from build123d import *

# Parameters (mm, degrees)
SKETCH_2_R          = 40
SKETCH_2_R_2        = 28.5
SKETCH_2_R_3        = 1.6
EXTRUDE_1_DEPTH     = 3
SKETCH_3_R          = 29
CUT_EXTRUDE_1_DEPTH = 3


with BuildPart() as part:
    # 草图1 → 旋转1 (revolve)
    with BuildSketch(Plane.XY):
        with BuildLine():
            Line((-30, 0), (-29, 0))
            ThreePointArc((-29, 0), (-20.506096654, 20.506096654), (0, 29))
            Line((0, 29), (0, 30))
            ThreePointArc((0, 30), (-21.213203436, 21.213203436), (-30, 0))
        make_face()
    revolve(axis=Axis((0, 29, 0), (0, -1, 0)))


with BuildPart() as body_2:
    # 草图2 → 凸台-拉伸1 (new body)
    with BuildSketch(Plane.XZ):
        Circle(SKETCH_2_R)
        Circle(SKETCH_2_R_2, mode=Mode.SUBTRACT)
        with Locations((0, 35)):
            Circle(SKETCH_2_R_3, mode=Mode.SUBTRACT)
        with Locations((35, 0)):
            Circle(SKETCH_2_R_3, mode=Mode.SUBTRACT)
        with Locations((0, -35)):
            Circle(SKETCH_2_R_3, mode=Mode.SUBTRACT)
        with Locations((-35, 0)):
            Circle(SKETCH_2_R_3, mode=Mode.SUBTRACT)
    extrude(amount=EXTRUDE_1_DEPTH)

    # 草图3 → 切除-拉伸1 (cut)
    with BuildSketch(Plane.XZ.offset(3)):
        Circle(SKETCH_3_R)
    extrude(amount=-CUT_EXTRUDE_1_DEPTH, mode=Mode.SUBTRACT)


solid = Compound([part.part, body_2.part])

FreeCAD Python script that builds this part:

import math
import FreeCAD as App
import Part
import Sketcher

doc = App.newDocument("Part")
params = doc.addObject("Spreadsheet::Sheet", "Params")
for row, (alias, value) in enumerate([
    ("sketch1_radius", "29 mm"),
    ("sketch1_radius2", "30 mm"),
    ("revolution_angle", "360 deg"),
    ("sketch2_diameter", "80 mm"),
    ("sketch2_diameter2", "57 mm"),
    ("sketch2_diameter3", "3.2 mm"),
    ("pad1_length", "3 mm"),
    ("sketch3_diameter", "58 mm"),
    ("pocket1_length", "3 mm"),
], start=1):
    params.set(f"A{row}", alias)
    params.set(f"B{row}", "=" + value)
    params.setAlias(f"B{row}", alias)

body = doc.addObject("PartDesign::Body", "Body")

# Sketch on XY plane
sketch1 = doc.addObject("Sketcher::SketchObject", "Sketch")
body.addObject(sketch1)
sketch1.AttachmentSupport = (doc.XY_Plane, [""])
sketch1.MapMode = "FlatFace"
sketch1.addGeometry(Part.LineSegment(App.Vector(-30, 0, 0), App.Vector(-29, 0, 0)), False)
sketch1.addGeometry(Part.ArcOfCircle(Part.Circle(App.Vector(0, 0, 0), App.Vector(0, 0, 1), 29), math.radians(90), math.radians(180)), False)
sketch1.addGeometry(Part.LineSegment(App.Vector(0, 29, 0), App.Vector(0, 30, 0)), False)
sketch1.addGeometry(Part.ArcOfCircle(Part.Circle(App.Vector(0, 0, 0), App.Vector(0, 0, 1), 30), math.radians(90), math.radians(180)), False)
sketch1.addConstraint(Sketcher.Constraint("Coincident", 0, 2, 1, 2))
sketch1.addConstraint(Sketcher.Constraint("Coincident", 1, 1, 2, 1))
sketch1.addConstraint(Sketcher.Constraint("Coincident", 2, 2, 3, 1))
sketch1.addConstraint(Sketcher.Constraint("Coincident", 3, 2, 0, 1))
sketch1.addConstraint(Sketcher.Constraint("Horizontal", 0))
sketch1.addConstraint(Sketcher.Constraint("Vertical", 2))
sketch1.addConstraint(Sketcher.Constraint("Coincident", 1, 3, -1, 1))
sketch1.addConstraint(Sketcher.Constraint("Coincident", 3, 3, -1, 1))
sketch1.addConstraint(Sketcher.Constraint("PointOnObject", 0, 2, -1))
sketch1.addConstraint(Sketcher.Constraint("PointOnObject", 1, 1, -2))
sketch1.addConstraint(Sketcher.Constraint("Radius", 1, 29.0))
sketch1.addConstraint(Sketcher.Constraint("Radius", 3, 30.0))
sketch1.setExpression("Constraints[10]", "Params.sketch1_radius")
sketch1.setExpression("Constraints[11]", "Params.sketch1_radius2")
revolution = doc.addObject("PartDesign::Revolution", "Revolution")
body.addObject(revolution)
revolution.Profile = sketch1
revolution.ReferenceAxis = (sketch1, ["V_Axis"])
revolution.setExpression("Angle", "Params.revolution_angle")
body2 = doc.addObject("PartDesign::Body", "Body001")

# Sketch on XZ plane
sketch2 = doc.addObject("Sketcher::SketchObject", "Sketch001")
body2.addObject(sketch2)
sketch2.AttachmentSupport = (doc.getObject("XZ_Plane001"), [""])
sketch2.MapMode = "FlatFace"
sketch2.addGeometry(Part.Circle(App.Vector(0, 0, 0), App.Vector(0, 0, 1), 40), False)
sketch2.addGeometry(Part.Circle(App.Vector(0, -35, 0), App.Vector(0, 0, 1), 1.6), False)
sketch2.addGeometry(Part.Circle(App.Vector(0, 0, 0), App.Vector(0, 0, 1), 28.5), False)
sketch2.addGeometry(Part.Circle(App.Vector(-35, 0, 0), App.Vector(0, 0, 1), 1.6), False)
sketch2.addGeometry(Part.Circle(App.Vector(35, 0, 0), App.Vector(0, 0, 1), 1.6), False)
sketch2.addGeometry(Part.Circle(App.Vector(0, 35, 0), App.Vector(0, 0, 1), 1.6), False)
sketch2.addConstraint(Sketcher.Constraint("Coincident", 0, 3, -1, 1))
sketch2.addConstraint(Sketcher.Constraint("Coincident", 2, 3, -1, 1))
sketch2.addConstraint(Sketcher.Constraint("Equal", 1, 3))
sketch2.addConstraint(Sketcher.Constraint("Equal", 3, 4))
sketch2.addConstraint(Sketcher.Constraint("Equal", 4, 5))
sketch2.addConstraint(Sketcher.Constraint("Symmetric", 3, 3, 4, 3, -1, 1))
sketch2.addConstraint(Sketcher.Constraint("Symmetric", 1, 3, 5, 3, -1, 1))
sketch2.addConstraint(Sketcher.Constraint("PointOnObject", 1, 3, -2))
sketch2.addConstraint(Sketcher.Constraint("PointOnObject", 3, 3, -1))
sketch2.addConstraint(Sketcher.Constraint("Diameter", 0, 80.0))
sketch2.addConstraint(Sketcher.Constraint("Diameter", 2, 57.0))
sketch2.addConstraint(Sketcher.Constraint("Diameter", 1, 3.2))
sketch2.addConstraint(Sketcher.Constraint("DistanceY", 1, 3, -1, 1, 35.0))
sketch2.addConstraint(Sketcher.Constraint("DistanceX", 3, 3, -1, 1, 35.0))
sketch2.setExpression("Constraints[9]", "Params.sketch2_diameter")
sketch2.setExpression("Constraints[10]", "Params.sketch2_diameter2")
sketch2.setExpression("Constraints[11]", "Params.sketch2_diameter3")
pad1 = doc.addObject("PartDesign::Pad", "Pad")
body2.addObject(pad1)
pad1.Profile = sketch2
pad1.setExpression("Length", "Params.pad1_length")

# Sketch on XZ plane
sketch3 = doc.addObject("Sketcher::SketchObject", "Sketch002")
body2.addObject(sketch3)
sketch3.AttachmentSupport = (doc.getObject("XZ_Plane001"), [""])
sketch3.MapMode = "FlatFace"
sketch3.AttachmentOffset = App.Placement(App.Vector(0, 0, 3), App.Rotation())
sketch3.addGeometry(Part.Circle(App.Vector(0, 0, 0), App.Vector(0, 0, 1), 29), False)
sketch3.addConstraint(Sketcher.Constraint("Coincident", 0, 3, -1, 1))
sketch3.addConstraint(Sketcher.Constraint("Diameter", 0, 58.0))
sketch3.setExpression("Constraints[1]", "Params.sketch3_diameter")
pocket1 = doc.addObject("PartDesign::Pocket", "Pocket")
body2.addObject(pocket1)
pocket1.Profile = sketch3
pocket1.setExpression("Length", "Params.pocket1_length")

doc.recompute()
